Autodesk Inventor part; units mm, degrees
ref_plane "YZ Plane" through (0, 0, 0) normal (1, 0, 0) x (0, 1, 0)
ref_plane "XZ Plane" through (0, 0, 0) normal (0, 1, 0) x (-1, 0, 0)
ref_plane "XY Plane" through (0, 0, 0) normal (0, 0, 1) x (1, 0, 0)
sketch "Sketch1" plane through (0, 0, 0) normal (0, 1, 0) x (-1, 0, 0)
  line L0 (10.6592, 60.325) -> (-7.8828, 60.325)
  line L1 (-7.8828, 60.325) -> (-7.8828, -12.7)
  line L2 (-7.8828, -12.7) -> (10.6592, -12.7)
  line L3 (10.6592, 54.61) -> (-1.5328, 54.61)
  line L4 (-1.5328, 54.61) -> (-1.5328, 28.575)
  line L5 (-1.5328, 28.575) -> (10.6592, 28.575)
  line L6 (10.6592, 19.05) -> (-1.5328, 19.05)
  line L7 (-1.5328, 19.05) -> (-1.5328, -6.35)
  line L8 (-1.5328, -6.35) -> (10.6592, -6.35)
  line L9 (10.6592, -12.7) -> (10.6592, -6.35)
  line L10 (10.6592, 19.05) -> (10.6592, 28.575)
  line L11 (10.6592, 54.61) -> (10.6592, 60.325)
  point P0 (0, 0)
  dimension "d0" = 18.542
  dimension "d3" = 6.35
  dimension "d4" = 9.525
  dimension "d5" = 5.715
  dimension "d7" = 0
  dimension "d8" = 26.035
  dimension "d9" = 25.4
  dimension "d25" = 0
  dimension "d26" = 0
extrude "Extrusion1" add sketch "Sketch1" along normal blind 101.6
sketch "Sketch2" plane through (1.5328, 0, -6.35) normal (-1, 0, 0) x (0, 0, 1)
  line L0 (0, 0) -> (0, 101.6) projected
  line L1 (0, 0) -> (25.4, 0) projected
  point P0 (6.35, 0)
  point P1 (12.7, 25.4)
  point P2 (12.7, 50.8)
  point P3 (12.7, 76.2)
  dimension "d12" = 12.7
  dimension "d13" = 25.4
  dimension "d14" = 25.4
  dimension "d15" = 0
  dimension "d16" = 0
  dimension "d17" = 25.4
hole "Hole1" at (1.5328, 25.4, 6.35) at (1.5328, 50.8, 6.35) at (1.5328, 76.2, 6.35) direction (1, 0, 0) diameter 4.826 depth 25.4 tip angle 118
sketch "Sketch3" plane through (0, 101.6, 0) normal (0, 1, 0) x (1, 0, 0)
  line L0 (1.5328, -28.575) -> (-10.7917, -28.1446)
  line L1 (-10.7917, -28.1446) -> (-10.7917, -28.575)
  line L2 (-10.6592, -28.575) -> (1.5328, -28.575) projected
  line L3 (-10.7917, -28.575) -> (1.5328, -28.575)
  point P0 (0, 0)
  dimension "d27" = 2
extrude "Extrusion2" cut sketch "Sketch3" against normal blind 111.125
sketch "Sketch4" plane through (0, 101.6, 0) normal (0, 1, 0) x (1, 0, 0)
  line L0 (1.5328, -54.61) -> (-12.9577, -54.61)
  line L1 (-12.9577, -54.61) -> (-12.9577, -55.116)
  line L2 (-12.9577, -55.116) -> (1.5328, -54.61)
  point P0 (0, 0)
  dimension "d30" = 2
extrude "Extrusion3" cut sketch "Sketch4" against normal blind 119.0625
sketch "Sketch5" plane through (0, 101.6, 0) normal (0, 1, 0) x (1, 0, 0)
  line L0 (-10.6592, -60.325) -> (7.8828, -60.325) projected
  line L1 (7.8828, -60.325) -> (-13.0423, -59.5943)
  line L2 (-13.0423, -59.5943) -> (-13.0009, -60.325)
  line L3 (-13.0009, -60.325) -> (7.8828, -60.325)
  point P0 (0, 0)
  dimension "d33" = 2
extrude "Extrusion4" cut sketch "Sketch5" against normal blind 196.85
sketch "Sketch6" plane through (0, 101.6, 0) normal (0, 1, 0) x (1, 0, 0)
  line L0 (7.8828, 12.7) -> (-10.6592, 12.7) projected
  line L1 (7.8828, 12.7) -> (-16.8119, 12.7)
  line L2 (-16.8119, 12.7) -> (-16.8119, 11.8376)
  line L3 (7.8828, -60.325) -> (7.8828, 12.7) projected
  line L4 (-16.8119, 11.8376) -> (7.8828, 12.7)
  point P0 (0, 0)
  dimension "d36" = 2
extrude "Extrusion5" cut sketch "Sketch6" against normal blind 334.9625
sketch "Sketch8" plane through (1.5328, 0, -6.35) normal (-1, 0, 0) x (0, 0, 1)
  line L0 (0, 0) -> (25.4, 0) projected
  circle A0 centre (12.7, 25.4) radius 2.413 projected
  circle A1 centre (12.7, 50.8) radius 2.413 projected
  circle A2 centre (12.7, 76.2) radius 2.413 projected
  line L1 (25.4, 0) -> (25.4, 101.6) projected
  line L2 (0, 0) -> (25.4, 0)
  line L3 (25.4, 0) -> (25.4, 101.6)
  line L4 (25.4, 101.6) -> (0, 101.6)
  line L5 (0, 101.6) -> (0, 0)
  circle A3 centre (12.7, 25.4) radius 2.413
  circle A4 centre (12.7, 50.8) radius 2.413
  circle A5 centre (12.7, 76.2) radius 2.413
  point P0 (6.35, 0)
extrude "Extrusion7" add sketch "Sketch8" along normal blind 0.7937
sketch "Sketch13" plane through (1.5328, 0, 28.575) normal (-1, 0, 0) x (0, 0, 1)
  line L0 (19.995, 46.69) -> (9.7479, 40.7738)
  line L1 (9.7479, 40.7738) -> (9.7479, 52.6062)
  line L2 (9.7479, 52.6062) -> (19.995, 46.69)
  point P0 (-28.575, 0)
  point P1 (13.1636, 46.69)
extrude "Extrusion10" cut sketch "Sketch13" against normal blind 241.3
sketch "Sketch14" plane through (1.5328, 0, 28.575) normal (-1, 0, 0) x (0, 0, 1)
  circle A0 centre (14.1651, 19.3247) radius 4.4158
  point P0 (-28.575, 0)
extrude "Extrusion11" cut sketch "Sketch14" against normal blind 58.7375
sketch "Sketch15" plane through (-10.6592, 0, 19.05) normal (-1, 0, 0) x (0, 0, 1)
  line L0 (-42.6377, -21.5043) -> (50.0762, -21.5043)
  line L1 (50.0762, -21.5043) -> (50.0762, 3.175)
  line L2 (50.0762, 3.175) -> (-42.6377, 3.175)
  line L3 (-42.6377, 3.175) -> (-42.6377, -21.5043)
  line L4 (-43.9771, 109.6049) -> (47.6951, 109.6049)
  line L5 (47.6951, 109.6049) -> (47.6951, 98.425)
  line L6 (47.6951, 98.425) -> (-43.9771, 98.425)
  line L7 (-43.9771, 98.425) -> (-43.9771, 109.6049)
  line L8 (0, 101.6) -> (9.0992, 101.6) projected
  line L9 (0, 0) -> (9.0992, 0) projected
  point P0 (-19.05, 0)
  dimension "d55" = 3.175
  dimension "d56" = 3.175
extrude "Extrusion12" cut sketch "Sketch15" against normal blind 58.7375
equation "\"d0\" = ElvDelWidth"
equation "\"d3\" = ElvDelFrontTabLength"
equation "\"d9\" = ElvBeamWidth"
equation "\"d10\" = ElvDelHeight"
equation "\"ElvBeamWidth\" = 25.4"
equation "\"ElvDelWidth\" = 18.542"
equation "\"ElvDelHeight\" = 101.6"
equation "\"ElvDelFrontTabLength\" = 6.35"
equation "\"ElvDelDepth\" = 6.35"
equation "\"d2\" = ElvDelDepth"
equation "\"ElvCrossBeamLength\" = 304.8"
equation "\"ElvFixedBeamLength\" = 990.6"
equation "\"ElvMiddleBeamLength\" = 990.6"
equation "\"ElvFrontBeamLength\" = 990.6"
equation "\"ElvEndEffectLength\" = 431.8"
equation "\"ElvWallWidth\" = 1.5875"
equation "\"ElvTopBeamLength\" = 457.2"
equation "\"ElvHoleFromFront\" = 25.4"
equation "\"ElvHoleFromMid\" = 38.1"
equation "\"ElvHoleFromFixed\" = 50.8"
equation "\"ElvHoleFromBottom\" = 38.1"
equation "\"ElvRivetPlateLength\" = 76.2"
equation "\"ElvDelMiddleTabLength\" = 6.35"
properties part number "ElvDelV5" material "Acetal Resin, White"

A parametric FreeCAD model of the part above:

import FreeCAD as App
import Part
import Sketcher

V = App.Vector
Q = App.Units.Quantity

doc = App.newDocument("Part")
body = doc.addObject("PartDesign::Body", "Body")

# Sketch on XZ plane
sketch1 = body.newObject("Sketcher::SketchObject", "Sketch")
sketch1.AttachmentSupport = (doc.getObject("XZ_Plane"), [""])
sketch1.MapMode = "FlatFace"
sketch1.addGeometry([
    Part.LineSegment(V(-10.6592, 54.61, 0), V(-10.6592, 60.325, 0)),  # 0
    Part.LineSegment(V(-10.6592, 60.325, 0), V(7.8828, 60.325, 0)),  # 1
    Part.LineSegment(V(7.8828, 60.325, 0), V(7.8828, -12.7, 0)),  # 2
    Part.LineSegment(V(7.8828, -12.7, 0), V(-10.6592, -12.7, 0)),  # 3
    Part.LineSegment(V(-10.6592, -12.7, 0), V(-10.6592, -6.35, 0)),  # 4
    Part.LineSegment(V(-10.6592, -6.35, 0), V(1.5328, -6.35, 0)),  # 5
    Part.LineSegment(V(1.5328, -6.35, 0), V(1.5328, 19.05, 0)),  # 6
    Part.LineSegment(V(1.5328, 19.05, 0), V(-10.6592, 19.05, 0)),  # 7
    Part.LineSegment(V(-10.6592, 19.05, 0), V(-10.6592, 28.575, 0)),  # 8
    Part.LineSegment(V(-10.6592, 28.575, 0), V(1.5328, 28.575, 0)),  # 9
    Part.LineSegment(V(1.5328, 28.575, 0), V(1.5328, 54.61, 0)),  # 10
    Part.LineSegment(V(1.5328, 54.61, 0), V(-10.6592, 54.61, 0)),  # 11
], False)
sketch1.addConstraint([
    Sketcher.Constraint("Coincident", 0, 2, 1, 1),
    Sketcher.Constraint("Coincident", 1, 2, 2, 1),
    Sketcher.Constraint("Coincident", 2, 2, 3, 1),
    Sketcher.Constraint("Coincident", 3, 2, 4, 1),
    Sketcher.Constraint("Coincident", 4, 2, 5, 1),
    Sketcher.Constraint("Coincident", 5, 2, 6, 1),
    Sketcher.Constraint("Coincident", 6, 2, 7, 1),
    Sketcher.Constraint("Coincident", 7, 2, 8, 1),
    Sketcher.Constraint("Coincident", 8, 2, 9, 1),
    Sketcher.Constraint("Coincident", 9, 2, 10, 1),
    Sketcher.Constraint("Coincident", 10, 2, 11, 1),
    Sketcher.Constraint("Coincident", 11, 2, 0, 1),
    Sketcher.Constraint("Vertical", 0),
    Sketcher.Constraint("Horizontal", 1),
    Sketcher.Constraint("Vertical", 2),
    Sketcher.Constraint("Horizontal", 3),
    Sketcher.Constraint("Vertical", 4),
    Sketcher.Constraint("Horizontal", 5),
    Sketcher.Constraint("Vertical", 6),
    Sketcher.Constraint("Horizontal", 7),
    Sketcher.Constraint("Vertical", 8),
    Sketcher.Constraint("Horizontal", 9),
    Sketcher.Constraint("Vertical", 10),
    Sketcher.Constraint("Horizontal", 11),
    Sketcher.Constraint("Vertical", 0, 2, 3, 2),
    Sketcher.Constraint("Vertical", 4, 2, 7, 2),
    Sketcher.Constraint("Vertical", 6, 2, 9, 2),
    Sketcher.Constraint("DistanceY", 6, 1, 6, 2, Q("1 in")),
    Sketcher.Constraint("DistanceX", 1, 1, 1, 2, Q("0.73 in")),
    Sketcher.Constraint("DistanceY", 4, 1, 4, 2, Q("0.25 in")),
    Sketcher.Constraint("DistanceY", 0, 1, 0, 2, Q("0.225 in")),
    Sketcher.Constraint("DistanceY", 8, 1, 8, 2, Q("0.375 in")),
    Sketcher.Constraint("DistanceY", 10, 1, 10, 2, Q("1.025 in")),
    Sketcher.Constraint("DistanceY", 4, 2, -1, 1, Q("0.25 in")),
    Sketcher.Constraint("DistanceX", 5, 2, 2, 2, Q("0.25 in")),
    Sketcher.Constraint("DistanceX", 0, 2, -1, 1, Q("10.6592 mm")),
])
pad1 = body.newObject("PartDesign::Pad", "Pad")
pad1.Profile = sketch1
pad1.Length = Q("4 in")
pad1.Reversed = True

# Sketch on YZ plane
sketch2 = body.newObject("Sketcher::SketchObject", "Sketch001")
sketch2.AttachmentSupport = (doc.getObject("YZ_Plane"), [""])
sketch2.MapMode = "FlatFace"
sketch2.AttachmentOffset = App.Placement(V(0, 0, 1.5328), App.Rotation())
sketch2.addGeometry([
    Part.Circle(V(25.4, 6.35, 0), V(0, 0, 1), 2.413),
    Part.Circle(V(50.8, 6.35, 0), V(0, 0, 1), 2.413),
    Part.Circle(V(76.2, 6.35, 0), V(0, 0, 1), 2.413),
], False)
sketch2.addConstraint([
    Sketcher.Constraint("Equal", 0, 1),
    Sketcher.Constraint("Equal", 1, 2),
    Sketcher.Constraint("Horizontal", 0, 3, 1, 3),
    Sketcher.Constraint("Horizontal", 1, 3, 2, 3),
    Sketcher.Constraint("Diameter", 0, Q("0.19 in")),
    Sketcher.Constraint("DistanceX", -1, 1, 0, 3, Q("1 in")),
    Sketcher.Constraint("DistanceX", -1, 1, 1, 3, Q("2 in")),
    Sketcher.Constraint("DistanceX", -1, 1, 2, 3, Q("3 in")),
    Sketcher.Constraint("DistanceY", -1, 1, 0, 3, Q("0.25 in")),
])
doc.recompute()
hole = body.newObject("PartDesign::Hole", "Hole")
hole.Profile = sketch2
hole.ThreadType = "None"
hole.Diameter = Q("0.19 in")
hole.DepthType = "Dimension"
hole.Depth = Q("1 in")
hole.DrillPoint = "Angled"
hole.DrillPointAngle = 118
hole.Reversed = True

# Sketch on XZ plane
sketch3 = body.newObject("Sketcher::SketchObject", "Sketch002")
sketch3.AttachmentSupport = (doc.getObject("XZ_Plane"), [""])
sketch3.MapMode = "FlatFace"
sketch3.AttachmentOffset = App.Placement(V(0, 0, -4 * 25.4), App.Rotation())
sketch3.addGeometry([
    Part.LineSegment(V(-10.7917, 28.575, 0), V(1.5328, 28.575, 0)),
    Part.LineSegment(V(1.5328, 28.575, 0), V(-10.7917, 28.1446, 0)),
    Part.LineSegment(V(-10.7917, 28.1446, 0), V(-10.7917, 28.575, 0)),
], False)
sketch3.addConstraint([
    Sketcher.Constraint("Coincident", 0, 2, 1, 1),
    Sketcher.Constraint("Coincident", 1, 2, 2, 1),
    Sketcher.Constraint("Coincident", 2, 2, 0, 1),
    Sketcher.Constraint("Horizontal", 0),
    Sketcher.Constraint("Vertical", 2),
    Sketcher.Constraint("Angle", 1, Q("-178 deg")),
    Sketcher.Constraint("DistanceY", -1, 1, 0, 2, Q("1.125 in")),
    Sketcher.Constraint("DistanceX", 0, 1, 0, 2, Q("12.3245 mm")),
    Sketcher.Constraint("DistanceX", -1, 1, 0, 2, Q("1.5328 mm")),
])
pocket1 = body.newObject("PartDesign::Pocket", "Pocket")
pocket1.Profile = sketch3
pocket1.Length = Q("4.375 in")
pocket1.Reversed = True

# Sketch on XZ plane
sketch4 = body.newObject("Sketcher::SketchObject", "Sketch003")
sketch4.AttachmentSupport = (doc.getObject("XZ_Plane"), [""])
sketch4.MapMode = "FlatFace"
sketch4.AttachmentOffset = App.Placement(V(0, 0, -4 * 25.4), App.Rotation())
sketch4.addGeometry([
    Part.LineSegment(V(-12.9577, 55.116, 0), V(1.5328, 54.61, 0)),
    Part.LineSegment(V(1.5328, 54.61, 0), V(-12.9577, 54.61, 0)),
    Part.LineSegment(V(-12.9577, 54.61, 0), V(-12.9577, 55.116, 0)),
], False)
sketch4.addConstraint([
    Sketcher.Constraint("Coincident", 0, 2, 1, 1),
    Sketcher.Constraint("Coincident", 1, 2, 2, 1),
    Sketcher.Constraint("Coincident", 2, 2, 0, 1),
    Sketcher.Constraint("Horizontal", 1),
    Sketcher.Constraint("Vertical", 2),
    Sketcher.Constraint("Angle", 0, Q("-2 deg")),
    Sketcher.Constraint("DistanceY", -1, 1, 0, 2, Q("2.15 in")),
    Sketcher.Constraint("DistanceX", 1, 2, 1, 1, Q("0.5705 in")),
    Sketcher.Constraint("DistanceX", -1, 1, 0, 2, Q("1.5328 mm")),
])
pocket2 = body.newObject("PartDesign::Pocket", "Pocket001")
pocket2.Profile = sketch4
pocket2.Length = Q("4.6875 in")
pocket2.Reversed = True

# Sketch on XZ plane
sketch5 = body.newObject("Sketcher::SketchObject", "Sketch004")
sketch5.AttachmentSupport = (doc.getObject("XZ_Plane"), [""])
sketch5.MapMode = "FlatFace"
sketch5.AttachmentOffset = App.Placement(V(0, 0, -4 * 25.4), App.Rotation())
sketch5.addGeometry([
    Part.LineSegment(V(-13.0009, 60.325, 0), V(7.8828, 60.325, 0)),
    Part.LineSegment(V(7.8828, 60.325, 0), V(-13.0423, 59.5943, 0)),
    Part.LineSegment(V(-13.0423, 59.5943, 0), V(-13.0009, 60.325, 0)),
], False)
sketch5.addConstraint([
    Sketcher.Constraint("Coincident", 0, 2, 1, 1),
    Sketcher.Constraint("Coincident", 1, 2, 2, 1),
    Sketcher.Constraint("Coincident", 2, 2, 0, 1),
    Sketcher.Constraint("Horizontal", 0),
    Sketcher.Constraint("Angle", 1, Q("-178 deg")),
    Sketcher.Constraint("DistanceX", 0, 1, 0, 2, Q("0.8222 in")),
    Sketcher.Constraint("DistanceY", -1, 1, 0, 2, Q("2.375 in")),
    Sketcher.Constraint("Distance", 1, Q("20.9379 mm")),
    Sketcher.Constraint("DistanceX", -1, 1, 0, 2, Q("7.8828 mm")),
])
pocket3 = body.newObject("PartDesign::Pocket", "Pocket002")
pocket3.Profile = sketch5
pocket3.Length = Q("7.75 in")
pocket3.Reversed = True

# Sketch on XZ plane
sketch6 = body.newObject("Sketcher::SketchObject", "Sketch005")
sketch6.AttachmentSupport = (doc.getObject("XZ_Plane"), [""])
sketch6.MapMode = "FlatFace"
sketch6.AttachmentOffset = App.Placement(V(0, 0, -4 * 25.4), App.Rotation())
sketch6.addGeometry([
    Part.LineSegment(V(-16.8119, -11.8376, 0), V(7.8828, -12.7, 0)),
    Part.LineSegment(V(7.8828, -12.7, 0), V(-16.8119, -12.7, 0)),
    Part.LineSegment(V(-16.8119, -12.7, 0), V(-16.8119, -11.8376, 0)),
], False)
sketch6.addConstraint([
    Sketcher.Constraint("Coincident", 0, 2, 1, 1),
    Sketcher.Constraint("Coincident", 1, 2, 2, 1),
    Sketcher.Constraint("Coincident", 2, 2, 0, 1),
    Sketcher.Constraint("Horizontal", 1),
    Sketcher.Constraint("Vertical", 2),
    Sketcher.Constraint("Angle", 0, Q("-2 deg")),
    Sketcher.Constraint("DistanceY", 0, 2, -1, 1, Q("0.5 in")),
    Sketcher.Constraint("DistanceX", 1, 2, 1, 1, Q("24.6947 mm")),
    Sketcher.Constraint("DistanceX", -1, 1, 0, 2, Q("7.8828 mm")),
])
pocket4 = body.newObject("PartDesign::Pocket", "Pocket003")
pocket4.Profile = sketch6
pocket4.Length = Q("13.1875 in")
pocket4.Reversed = True

# Sketch on YZ plane
sketch7 = body.newObject("Sketcher::SketchObject", "Sketch006")
sketch7.AttachmentSupport = (doc.getObject("YZ_Plane"), [""])
sketch7.MapMode = "FlatFace"
sketch7.AttachmentOffset = App.Placement(V(0, 0, 1.5328), App.Rotation())
sketch7.addGeometry([
    Part.LineSegment(V(101.6, -6.35, 0), V(0, -6.35, 0)),  # 0
    Part.LineSegment(V(0, -6.35, 0), V(0, 19.05, 0)),  # 1
    Part.LineSegment(V(0, 19.05, 0), V(101.6, 19.05, 0)),  # 2
    Part.LineSegment(V(101.6, 19.05, 0), V(101.6, -6.35, 0)),  # 3
    Part.Circle(V(25.4, 6.35, 0), V(0, 0, 1), 2.413),  # 4
    Part.Circle(V(50.8, 6.35, 0), V(0, 0, 1), 2.413),  # 5
    Part.Circle(V(76.2, 6.35, 0), V(0, 0, 1), 2.413),  # 6
], False)
sketch7.addConstraint([
    Sketcher.Constraint("Coincident", 0, 2, 1, 1),
    Sketcher.Constraint("Coincident", 1, 2, 2, 1),
    Sketcher.Constraint("Coincident", 2, 2, 3, 1),
    Sketcher.Constraint("Coincident", 3, 2, 0, 1),
    Sketcher.Constraint("Horizontal", 0),
    Sketcher.Constraint("Vertical", 1),
    Sketcher.Constraint("Horizontal", 2),
    Sketcher.Constraint("Vertical", 3),
    Sketcher.Constraint("Equal", 4, 5),
    Sketcher.Constraint("Equal", 5, 6),
    Sketcher.Constraint("PointOnObject", 0, 2, -2),
    Sketcher.Constraint("Horizontal", 4, 3, 5, 3),
    Sketcher.Constraint("Horizontal", 5, 3, 6, 3),
    Sketcher.Constraint("Diameter", 4, Q("0.19 in")),
    Sketcher.Constraint("DistanceX", 0, 2, 0, 1, Q("4 in")),
    Sketcher.Constraint("DistanceY", 1, 1, 1, 2, Q("1 in")),
    Sketcher.Constraint("DistanceX", -1, 1, 4, 3, Q("1 in")),
    Sketcher.Constraint("DistanceX", -1, 1, 5, 3, Q("2 in")),
    Sketcher.Constraint("DistanceX", -1, 1, 6, 3, Q("3 in")),
    Sketcher.Constraint("DistanceY", 0, 2, 4, 3, Q("0.5 in")),
    Sketcher.Constraint("DistanceY", -1, 1, 4, 3, Q("0.25 in")),
])
pad2 = body.newObject("PartDesign::Pad", "Pad001")
pad2.Profile = sketch7
pad2.Length = Q("0.031248 in")
pad2.Reversed = True

# Sketch on YZ plane
sketch8 = body.newObject("Sketcher::SketchObject", "Sketch007")
sketch8.AttachmentSupport = (doc.getObject("YZ_Plane"), [""])
sketch8.MapMode = "FlatFace"
sketch8.AttachmentOffset = App.Placement(V(0, 0, 1.5328), App.Rotation())
sketch8.addGeometry([
    Part.LineSegment(V(40.7738, 38.3229, 0), V(46.69, 48.57, 0)),
    Part.LineSegment(V(46.69, 48.57, 0), V(52.6062, 38.3229, 0)),
    Part.LineSegment(V(52.6062, 38.3229, 0), V(40.7738, 38.3229, 0)),
], False)
sketch8.addConstraint([
    Sketcher.Constraint("Coincident", 0, 2, 1, 1),
    Sketcher.Constraint("Coincident", 1, 2, 2, 1),
    Sketcher.Constraint("Coincident", 2, 2, 0, 1),
    Sketcher.Constraint("Horizontal", 2),
    Sketcher.Constraint("Equal", 0, 1),
    Sketcher.Constraint("Angle", 0, Q("59.9999 deg")),
    Sketcher.Constraint("DistanceX", 2, 2, 2, 1, Q("11.8324 mm")),
    Sketcher.Constraint("DistanceX", -1, 1, 0, 2, Q("1.8382 in")),
    Sketcher.Constraint("DistanceY", -1, 1, 0, 2, Q("1.9122 in")),
])
pocket5 = body.newObject("PartDesign::Pocket", "Pocket004")
pocket5.Profile = sketch8
pocket5.Length = Q("9.5 in")
pocket5.Reversed = True

# Sketch on YZ plane
sketch9 = body.newObject("Sketcher::SketchObject", "Sketch008")
sketch9.AttachmentSupport = (doc.getObject("YZ_Plane"), [""])
sketch9.MapMode = "FlatFace"
sketch9.AttachmentOffset = App.Placement(V(0, 0, 1.5328), App.Rotation())
sketch9.addGeometry(Part.Circle(V(19.3247, 42.7401, 0), V(0, 0, 1), 4.4158), False)
sketch9.addConstraint([
    Sketcher.Constraint("Diameter", 0, Q("0.3477 in")),
    Sketcher.Constraint("DistanceX", -1, 1, 0, 3, Q("19.3247 mm")),
    Sketcher.Constraint("DistanceY", -1, 1, 0, 3, Q("42.74 mm")),
])
pocket6 = body.newObject("PartDesign::Pocket", "Pocket005")
pocket6.Profile = sketch9
pocket6.Length = Q("2.3125 in")
pocket6.Reversed = True

# Sketch on YZ plane
sketch10 = body.newObject("Sketcher::SketchObject", "Sketch009")
sketch10.AttachmentSupport = (doc.getObject("YZ_Plane"), [""])
sketch10.MapMode = "FlatFace"
sketch10.AttachmentOffset = App.Placement(V(0, 0, -10.6592), App.Rotation())
sketch10.addGeometry([
    Part.LineSegment(V(3.175, -23.5877, 0), V(-21.5043, -23.5877, 0)),  # 0
    Part.LineSegment(V(-21.5043, -23.5877, 0), V(-21.5043, 69.1262, 0)),  # 1
    Part.LineSegment(V(-21.5043, 69.1262, 0), V(3.175, 69.1262, 0)),  # 2
    Part.LineSegment(V(3.175, 69.1262, 0), V(3.175, -23.5877, 0)),  # 3
    Part.LineSegment(V(109.6049, 66.7451, 0), V(109.6049, -24.9271, 0)),  # 4
    Part.LineSegment(V(109.6049, -24.9271, 0), V(98.425, -24.9271, 0)),  # 5
    Part.LineSegment(V(98.425, -24.9271, 0), V(98.425, 66.7451, 0)),  # 6
    Part.LineSegment(V(98.425, 66.7451, 0), V(109.6049, 66.7451, 0)),  # 7
], False)
sketch10.addConstraint([
    Sketcher.Constraint("Coincident", 0, 2, 1, 1),
    Sketcher.Constraint("Coincident", 1, 2, 2, 1),
    Sketcher.Constraint("Coincident", 2, 2, 3, 1),
    Sketcher.Constraint("Coincident", 3, 2, 0, 1),
    Sketcher.Constraint("Coincident", 4, 2, 5, 1),
    Sketcher.Constraint("Coincident", 5, 2, 6, 1),
    Sketcher.Constraint("Coincident", 6, 2, 7, 1),
    Sketcher.Constraint("Coincident", 7, 2, 4, 1),
    Sketcher.Constraint("Horizontal", 0),
    Sketcher.Constraint("Vertical", 1),
    Sketcher.Constraint("Horizontal", 2),
    Sketcher.Constraint("Vertical", 3),
    Sketcher.Constraint("Vertical", 4),
    Sketcher.Constraint("Horizontal", 5),
    Sketcher.Constraint("Vertical", 6),
    Sketcher.Constraint("Horizontal", 7),
    Sketcher.Constraint("DistanceX", -1, 1, 2, 2, Q("0.125 in")),
    Sketcher.Constraint("DistanceX", 3, 2, 5, 2, Q("3.75 in")),
    Sketcher.Constraint("DistanceY", 6, 2, 2, 2, Q("2.381 mm")),
    Sketcher.Constraint("DistanceX", 0, 2, 0, 1, Q("24.6793 mm")),
    Sketcher.Constraint("DistanceX", 5, 2, 5, 1, Q("11.18 mm")),
    Sketcher.Constraint("DistanceY", 1, 1, 1, 2, Q("92.714 mm")),
    Sketcher.Constraint("DistanceY", 4, 2, 4, 1, Q("91.6722 mm")),
    Sketcher.Constraint("DistanceY", -1, 1, 1, 2, Q("2.7215 in")),
])
pocket7 = body.newObject("PartDesign::Pocket", "Pocket006")
pocket7.Profile = sketch10
pocket7.Length = Q("2.3125 in")
pocket7.Reversed = True

doc.recompute()
